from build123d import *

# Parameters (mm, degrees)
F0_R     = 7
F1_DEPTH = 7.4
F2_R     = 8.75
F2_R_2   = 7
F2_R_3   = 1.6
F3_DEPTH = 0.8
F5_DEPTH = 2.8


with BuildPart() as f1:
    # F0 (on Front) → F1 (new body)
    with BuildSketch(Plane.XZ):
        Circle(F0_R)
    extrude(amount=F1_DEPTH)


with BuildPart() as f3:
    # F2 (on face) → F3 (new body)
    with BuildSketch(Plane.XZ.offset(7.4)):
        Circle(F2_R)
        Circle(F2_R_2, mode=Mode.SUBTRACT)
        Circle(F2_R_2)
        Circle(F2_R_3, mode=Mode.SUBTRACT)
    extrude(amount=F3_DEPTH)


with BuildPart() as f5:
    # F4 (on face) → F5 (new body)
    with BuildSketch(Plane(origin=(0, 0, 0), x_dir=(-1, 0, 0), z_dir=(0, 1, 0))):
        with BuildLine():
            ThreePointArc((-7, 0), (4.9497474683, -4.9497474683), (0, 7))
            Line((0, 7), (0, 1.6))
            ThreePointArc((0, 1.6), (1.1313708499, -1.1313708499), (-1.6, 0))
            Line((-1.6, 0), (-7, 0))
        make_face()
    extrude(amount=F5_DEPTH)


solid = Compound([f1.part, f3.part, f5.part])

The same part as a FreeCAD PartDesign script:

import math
import FreeCAD as App
import Part
import Sketcher
from FreeCAD import Vector
Q = App.Units.Quantity

doc = App.newDocument("Part")
body = doc.addObject("PartDesign::Body", "Body")

sketch1 = body.newObject("Sketcher::SketchObject", "Sketch")
sketch1.AttachmentSupport = (doc.getObject("XZ_Plane"), [""])
sketch1.MapMode = "FlatFace"
sketch1.addGeometry(Part.Circle(Vector(0, 0, 0), Vector(0, 0, 1), 7), False)
sketch1.addConstraint([
    Sketcher.Constraint("Coincident", 0, 3, -1, 1),
    Sketcher.Constraint("Diameter", 0, Q("14 mm")),
])
pad1 = body.newObject("PartDesign::Pad", "Pad")
pad1.Profile = sketch1
pad1.Length = 7.4
body2 = doc.addObject("PartDesign::Body", "Body001")

sketch2 = body2.newObject("Sketcher::SketchObject", "Sketch001")
sketch2.AttachmentSupport = (doc.getObject("XZ_Plane001"), [""])
sketch2.MapMode = "FlatFace"
sketch2.AttachmentOffset = App.Placement(Vector(0, 0, 7.4), App.Rotation())
sketch2.addGeometry([
    Part.Circle(Vector(0, 0, 0), Vector(0, 0, 1), 8.8),
    Part.Circle(Vector(0, 0, 0), Vector(0, 0, 1), 1.6),
], False)
sketch2.addConstraint([
    Sketcher.Constraint("Coincident", 0, 3, -1, 1),
    Sketcher.Constraint("Coincident", 1, 3, -1, 1),
    Sketcher.Constraint("Diameter", 0, Q("17.5 mm")),
    Sketcher.Constraint("Diameter", 1, Q("3.2 mm")),
])
pad2 = body2.newObject("PartDesign::Pad", "Pad001")
pad2.Profile = sketch2
pad2.Length = 0.8
body3 = doc.addObject("PartDesign::Body", "Body002")

sketch3 = body3.newObject("Sketcher::SketchObject", "Sketch002")
sketch3.AttachmentSupport = (doc.getObject("XZ_Plane002"), [""])
sketch3.MapMode = "FlatFace"
sketch3.addGeometry([
    Part.ArcOfCircle(Part.Circle(Vector(0, 0, 0), Vector(0, 0, 1), 7), math.radians(90), math.radians(360)),
    Part.LineSegment(Vector(0, 7, 0), Vector(0, 1.6, 0)),
    Part.ArcOfCircle(Part.Circle(Vector(0, 0, 0), Vector(0, 0, 1), 1.6), math.radians(90), math.radians(360)),
    Part.LineSegment(Vector(1.6, 0, 0), Vector(7, 0, 0)),
], False)
sketch3.addConstraint([
    Sketcher.Constraint("Coincident", 0, 1, 1, 1),
    Sketcher.Constraint("Coincident", 1, 2, 2, 1),
    Sketcher.Constraint("Coincident", 2, 2, 3, 1),
    Sketcher.Constraint("Coincident", 3, 2, 0, 2),
    Sketcher.Constraint("Vertical", 1),
    Sketcher.Constraint("Horizontal", 3),
    Sketcher.Constraint("Coincident", 0, 3, -1, 1),
    Sketcher.Constraint("Coincident", 2, 3, -1, 1),
    Sketcher.Constraint("PointOnObject", 0, 1, -2),
    Sketcher.Constraint("PointOnObject", 2, 2, -1),
    Sketcher.Constraint("Radius", 0, Q("7 mm")),
    Sketcher.Constraint("Radius", 2, Q("1.6 mm")),
])
pad3 = body3.newObject("PartDesign::Pad", "Pad002")
pad3.Profile = sketch3
pad3.Length = 2.8
pad3.Reversed = True

doc.recompute()
